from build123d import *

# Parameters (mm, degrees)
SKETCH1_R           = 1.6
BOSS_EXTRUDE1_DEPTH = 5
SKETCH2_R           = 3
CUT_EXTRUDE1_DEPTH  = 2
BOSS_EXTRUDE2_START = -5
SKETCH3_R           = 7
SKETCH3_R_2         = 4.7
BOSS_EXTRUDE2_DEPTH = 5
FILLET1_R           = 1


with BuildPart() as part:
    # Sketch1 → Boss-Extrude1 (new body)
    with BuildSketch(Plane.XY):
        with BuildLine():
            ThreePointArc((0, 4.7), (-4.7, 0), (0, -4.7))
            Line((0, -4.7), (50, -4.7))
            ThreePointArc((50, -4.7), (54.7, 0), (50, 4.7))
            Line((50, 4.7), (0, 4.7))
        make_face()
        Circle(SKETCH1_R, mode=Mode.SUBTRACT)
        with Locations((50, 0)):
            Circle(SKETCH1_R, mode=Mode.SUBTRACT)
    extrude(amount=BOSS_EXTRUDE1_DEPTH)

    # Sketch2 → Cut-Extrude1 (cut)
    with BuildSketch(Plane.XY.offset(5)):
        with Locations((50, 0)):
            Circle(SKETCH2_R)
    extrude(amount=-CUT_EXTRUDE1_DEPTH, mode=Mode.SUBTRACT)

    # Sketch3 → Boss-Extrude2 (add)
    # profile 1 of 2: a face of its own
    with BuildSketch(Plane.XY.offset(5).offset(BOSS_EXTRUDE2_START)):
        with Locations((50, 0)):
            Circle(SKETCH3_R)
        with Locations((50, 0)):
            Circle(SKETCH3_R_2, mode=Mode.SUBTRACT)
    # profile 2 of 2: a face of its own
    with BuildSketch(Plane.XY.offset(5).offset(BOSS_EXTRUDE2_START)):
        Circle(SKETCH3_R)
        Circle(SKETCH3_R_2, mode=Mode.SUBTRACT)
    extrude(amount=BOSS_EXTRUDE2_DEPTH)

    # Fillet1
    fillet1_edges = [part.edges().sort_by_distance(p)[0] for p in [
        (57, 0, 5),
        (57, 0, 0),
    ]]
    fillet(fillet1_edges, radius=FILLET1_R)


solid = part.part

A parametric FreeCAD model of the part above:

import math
import FreeCAD as App
import Part
import Sketcher

V = App.Vector
Q = App.Units.Quantity


def edges_at(feature, points):
    """Names of the edges that pass closest to the given points."""
    edges = feature.Shape.Edges
    near = lambda p: min(range(len(edges)), key=lambda i: edges[i].distToShape(Part.Vertex(*p))[0])
    return sorted({f"Edge{near(p) + 1}" for p in points})

doc = App.newDocument("Part")
body = doc.addObject("PartDesign::Body", "Body")

# Sketch on XY plane
sketch1 = body.newObject("Sketcher::SketchObject", "Sketch")
sketch1.AttachmentSupport = (doc.getObject("XY_Plane"), [""])
sketch1.MapMode = "FlatFace"
sketch1.addGeometry([
    Part.ArcOfCircle(Part.Circle(V(0, 0, 0), V(0, 0, 1), 4.7), math.radians(90), math.radians(270)),  # 0
    Part.LineSegment(V(0, -4.7, 0), V(50, -4.7, 0)),  # 1
    Part.ArcOfCircle(Part.Circle(V(50, 0, 0), V(0, 0, 1), 4.7), math.radians(-90), math.radians(90)),  # 2
    Part.LineSegment(V(50, 4.7, 0), V(0, 4.7, 0)),  # 3
    Part.Circle(V(0, 0, 0), V(0, 0, 1), 1.6),  # 4
    Part.Circle(V(50, 0, 0), V(0, 0, 1), 1.6),  # 5
], False)
sketch1.addConstraint([
    Sketcher.Constraint("Tangent", 0, 2, 1, 1),
    Sketcher.Constraint("Tangent", 1, 2, 2, 1),
    Sketcher.Constraint("Tangent", 2, 2, 3, 1),
    Sketcher.Constraint("Tangent", 3, 2, 0, 1),
    Sketcher.Constraint("Horizontal", 1),
    Sketcher.Constraint("Horizontal", 3),
    Sketcher.Constraint("Coincident", 0, 3, -1, 1),
    Sketcher.Constraint("Coincident", 4, 3, -1, 1),
    Sketcher.Constraint("Coincident", 5, 3, 2, 3),
    Sketcher.Constraint("Equal", 4, 5),
    Sketcher.Constraint("Diameter", 4, Q("3.2 mm")),
    Sketcher.Constraint("Radius", 0, Q("4.7 mm")),
    Sketcher.Constraint("DistanceX", 1, 1, 1, 2, Q("50 mm")),
])
pad1 = body.newObject("PartDesign::Pad", "Pad")
pad1.Profile = sketch1
pad1.Length = 5

# Sketch on XY plane
sketch2 = body.newObject("Sketcher::SketchObject", "Sketch001")
sketch2.AttachmentSupport = (doc.getObject("XY_Plane"), [""])
sketch2.MapMode = "FlatFace"
sketch2.AttachmentOffset = App.Placement(V(0, 0, 5), App.Rotation())
sketch2.addGeometry(Part.Circle(V(50, 0, 0), V(0, 0, 1), 3), False)
sketch2.addConstraint([
    Sketcher.Constraint("PointOnObject", 0, 3, -1),
    Sketcher.Constraint("Diameter", 0, Q("6 mm")),
    Sketcher.Constraint("DistanceX", -1, 1, 0, 3, Q("50 mm")),
])
pocket1 = body.newObject("PartDesign::Pocket", "Pocket")
pocket1.Profile = sketch2
pocket1.Length = 2

# Sketch on XY plane
sketch3 = body.newObject("Sketcher::SketchObject", "Sketch002")
sketch3.AttachmentSupport = (doc.getObject("XY_Plane"), [""])
sketch3.MapMode = "FlatFace"
sketch3.addGeometry([
    Part.Circle(V(50, 0, 0), V(0, 0, 1), 7),
    Part.Circle(V(50, 0, 0), V(0, 0, 1), 4.7),
    Part.Circle(V(0, 0, 0), V(0, 0, 1), 7),
    Part.Circle(V(0, 0, 0), V(0, 0, 1), 4.7),
], False)
sketch3.addConstraint([
    Sketcher.Constraint("Coincident", 2, 3, -1, 1),
    Sketcher.Constraint("Coincident", 3, 3, -1, 1),
    Sketcher.Constraint("Coincident", 1, 3, 0, 3),
    Sketcher.Constraint("Equal", 0, 2),
    Sketcher.Constraint("Equal", 1, 3),
    Sketcher.Constraint("PointOnObject", 0, 3, -1),
    Sketcher.Constraint("Diameter", 0, Q("14 mm")),
    Sketcher.Constraint("Diameter", 1, Q("9.4 mm")),
    Sketcher.Constraint("DistanceX", -1, 1, 0, 3, Q("50 mm")),
])
pad2 = body.newObject("PartDesign::Pad", "Pad001")
pad2.Profile = sketch3
pad2.Length = 5
doc.recompute()

fillet = body.newObject("PartDesign::Fillet", "Fillet")
fillet.Base = (pad2, edges_at(pad2, [(57, 0, 5), (57, 0, 0)]))
fillet.Radius = 1

doc.recompute()
